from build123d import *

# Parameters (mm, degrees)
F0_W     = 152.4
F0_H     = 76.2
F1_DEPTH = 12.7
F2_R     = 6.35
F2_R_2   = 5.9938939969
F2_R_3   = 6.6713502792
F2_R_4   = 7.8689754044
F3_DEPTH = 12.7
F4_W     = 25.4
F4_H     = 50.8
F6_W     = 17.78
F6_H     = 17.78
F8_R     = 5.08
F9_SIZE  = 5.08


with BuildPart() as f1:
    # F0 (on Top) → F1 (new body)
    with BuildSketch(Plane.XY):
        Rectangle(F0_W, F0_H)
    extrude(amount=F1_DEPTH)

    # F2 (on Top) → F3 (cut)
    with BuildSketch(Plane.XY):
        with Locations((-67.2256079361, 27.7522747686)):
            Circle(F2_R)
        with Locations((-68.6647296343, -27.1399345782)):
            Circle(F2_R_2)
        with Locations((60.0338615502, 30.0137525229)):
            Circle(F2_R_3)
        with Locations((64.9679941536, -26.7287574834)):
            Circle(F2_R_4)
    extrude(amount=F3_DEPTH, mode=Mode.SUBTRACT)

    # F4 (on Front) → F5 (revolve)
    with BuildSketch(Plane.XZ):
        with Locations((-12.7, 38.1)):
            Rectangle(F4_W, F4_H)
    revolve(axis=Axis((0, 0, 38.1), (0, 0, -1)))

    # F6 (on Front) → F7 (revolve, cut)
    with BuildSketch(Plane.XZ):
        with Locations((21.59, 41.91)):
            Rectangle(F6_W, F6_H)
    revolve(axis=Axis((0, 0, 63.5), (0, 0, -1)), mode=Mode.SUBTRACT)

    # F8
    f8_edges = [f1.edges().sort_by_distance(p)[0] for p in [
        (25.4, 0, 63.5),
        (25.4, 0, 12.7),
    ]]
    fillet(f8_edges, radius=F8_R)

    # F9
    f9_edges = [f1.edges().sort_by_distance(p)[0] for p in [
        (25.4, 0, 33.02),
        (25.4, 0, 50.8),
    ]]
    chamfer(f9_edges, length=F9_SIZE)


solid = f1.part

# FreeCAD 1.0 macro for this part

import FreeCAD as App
import Part
import Sketcher
Q = App.Units.Quantity


def edges_at(feature, points):
    """Names of the edges that pass closest to the given points."""
    edges = feature.Shape.Edges
    near = lambda p: min(range(len(edges)), key=lambda i: edges[i].distToShape(Part.Vertex(*p))[0])
    return sorted({f"Edge{near(p) + 1}" for p in points})

doc = App.newDocument("Part")
body = doc.addObject("PartDesign::Body", "Body")

sketch1 = doc.addObject("Sketcher::SketchObject", "Sketch")
body.addObject(sketch1)
sketch1.AttachmentSupport = (doc.XY_Plane, [""])
sketch1.MapMode = "FlatFace"
sketch1.addGeometry([
    Part.LineSegment(App.Vector(-76.2, 38.1, 0), App.Vector(-76.2, -38.1, 0)),
    Part.LineSegment(App.Vector(-76.2, -38.1, 0), App.Vector(76.2, -38.1, 0)),
    Part.LineSegment(App.Vector(76.2, -38.1, 0), App.Vector(76.2, 38.1, 0)),
    Part.LineSegment(App.Vector(76.2, 38.1, 0), App.Vector(-76.2, 38.1, 0)),
], False)
sketch1.addConstraint([
    Sketcher.Constraint("Coincident", 0, 2, 1, 1),
    Sketcher.Constraint("Coincident", 1, 2, 2, 1),
    Sketcher.Constraint("Coincident", 2, 2, 3, 1),
    Sketcher.Constraint("Coincident", 3, 2, 0, 1),
    Sketcher.Constraint("Vertical", 0),
    Sketcher.Constraint("Horizontal", 1),
    Sketcher.Constraint("Vertical", 2),
    Sketcher.Constraint("Horizontal", 3),
    Sketcher.Constraint("Symmetric", 0, 2, 2, 2, -1, 1),
    Sketcher.Constraint("DistanceX", 1, 1, 1, 2, Q("6 in")),
    Sketcher.Constraint("DistanceY", 0, 2, 0, 1, Q("3 in")),
])
pad1 = doc.addObject("PartDesign::Pad", "Pad")
body.addObject(pad1)
pad1.Profile = sketch1
pad1.Length = Q("0.5 in")

sketch2 = doc.addObject("Sketcher::SketchObject", "Sketch001")
body.addObject(sketch2)
sketch2.AttachmentSupport = (doc.XY_Plane, [""])
sketch2.MapMode = "FlatFace"
sketch2.addGeometry([
    Part.Circle(App.Vector(-67.225608, 27.752275, 0), App.Vector(0, 0, 1), 6.35),
    Part.Circle(App.Vector(-68.66473, -27.139935, 0), App.Vector(0, 0, 1), 5.993894),
    Part.Circle(App.Vector(60.033862, 30.013753, 0), App.Vector(0, 0, 1), 6.67135),
    Part.Circle(App.Vector(64.967994, -26.728757, 0), App.Vector(0, 0, 1), 7.868975),
], False)
sketch2.addConstraint([
    Sketcher.Constraint("Diameter", 0, Q("0.5 in")),
    Sketcher.Constraint("Diameter", 2, 13.342701),
    Sketcher.Constraint("Diameter", 3, 15.737951),
    Sketcher.Constraint("Diameter", 1, 11.987788),
    Sketcher.Constraint("DistanceX", 1, 3, -1, 1, 68.66473),
    Sketcher.Constraint("DistanceX", -1, 1, 2, 3, 60.033862),
    Sketcher.Constraint("DistanceX", 1, 3, 0, 3, 1.439122),
    Sketcher.Constraint("DistanceY", 1, 3, 0, 3, 54.892209),
    Sketcher.Constraint("DistanceY", 3, 3, 2, 3, 56.74251),
    Sketcher.Constraint("DistanceY", -1, 1, 0, 3, 27.752275),
    Sketcher.Constraint("DistanceY", -1, 1, 2, 3, 30.013753),
    Sketcher.Constraint("DistanceX", -1, 1, 3, 3, 64.967994),
])
pocket1 = doc.addObject("PartDesign::Pocket", "Pocket")
body.addObject(pocket1)
pocket1.Profile = sketch2
pocket1.Length = Q("0.5 in")
pocket1.Reversed = True

sketch3 = doc.addObject("Sketcher::SketchObject", "Sketch002")
body.addObject(sketch3)
sketch3.AttachmentSupport = (doc.XZ_Plane, [""])
sketch3.MapMode = "FlatFace"
sketch3.addGeometry([
    Part.LineSegment(App.Vector(-25.4, 63.5, 0), App.Vector(-25.4, 12.7, 0)),
    Part.LineSegment(App.Vector(-25.4, 12.7, 0), App.Vector(0, 12.7, 0)),
    Part.LineSegment(App.Vector(0, 12.7, 0), App.Vector(0, 63.5, 0)),
    Part.LineSegment(App.Vector(0, 63.5, 0), App.Vector(-25.4, 63.5, 0)),
], False)
sketch3.addConstraint([
    Sketcher.Constraint("Coincident", 0, 2, 1, 1),
    Sketcher.Constraint("Coincident", 1, 2, 2, 1),
    Sketcher.Constraint("Coincident", 2, 2, 3, 1),
    Sketcher.Constraint("Coincident", 3, 2, 0, 1),
    Sketcher.Constraint("Vertical", 0),
    Sketcher.Constraint("Horizontal", 1),
    Sketcher.Constraint("Vertical", 2),
    Sketcher.Constraint("Horizontal", 3),
    Sketcher.Constraint("PointOnObject", 1, 2, -2),
    Sketcher.Constraint("DistanceX", 1, 1, 1, 2, Q("1 in")),
    Sketcher.Constraint("DistanceY", 0, 2, 0, 1, Q("2 in")),
    Sketcher.Constraint("DistanceY", -1, 1, 0, 2, Q("0.5 in")),
])
revolution = doc.addObject("PartDesign::Revolution", "Revolution")
body.addObject(revolution)
revolution.Profile = sketch3
revolution.ReferenceAxis = (sketch3, ["V_Axis"])
revolution.Angle = 360

sketch4 = doc.addObject("Sketcher::SketchObject", "Sketch003")
body.addObject(sketch4)
sketch4.AttachmentSupport = (doc.XZ_Plane, [""])
sketch4.MapMode = "FlatFace"
sketch4.addGeometry([
    Part.LineSegment(App.Vector(12.7, 50.8, 0), App.Vector(12.7, 33.02, 0)),
    Part.LineSegment(App.Vector(12.7, 33.02, 0), App.Vector(30.48, 33.02, 0)),
    Part.LineSegment(App.Vector(30.48, 33.02, 0), App.Vector(30.48, 50.8, 0)),
    Part.LineSegment(App.Vector(30.48, 50.8, 0), App.Vector(12.7, 50.8, 0)),
], False)
sketch4.addConstraint([
    Sketcher.Constraint("Coincident", 0, 2, 1, 1),
    Sketcher.Constraint("Coincident", 1, 2, 2, 1),
    Sketcher.Constraint("Coincident", 2, 2, 3, 1),
    Sketcher.Constraint("Coincident", 3, 2, 0, 1),
    Sketcher.Constraint("Vertical", 0),
    Sketcher.Constraint("Horizontal", 1),
    Sketcher.Constraint("Vertical", 2),
    Sketcher.Constraint("Horizontal", 3),
    Sketcher.Constraint("Equal", 3, 0),
    Sketcher.Constraint("DistanceX", 1, 1, 1, 2, Q("0.7 in")),
    Sketcher.Constraint("DistanceY", -1, 1, 2, 2, Q("2 in")),
    Sketcher.Constraint("DistanceX", -1, 1, 0, 2, Q("0.5 in")),
])
groove = doc.addObject("PartDesign::Groove", "Groove")
body.addObject(groove)
groove.Profile = sketch4
groove.ReferenceAxis = (sketch4, ["V_Axis"])
groove.Angle = 360
doc.recompute()

fillet = doc.addObject("PartDesign::Fillet", "Fillet")
body.addObject(fillet)
fillet.Base = (groove, edges_at(groove, [(25.4, 0, 63.5), (25.4, 0, 12.7)]))
fillet.Radius = Q("0.2 in")
doc.recompute()

chamfer = doc.addObject("PartDesign::Chamfer", "Chamfer")
body.addObject(chamfer)
chamfer.Base = (fillet, edges_at(fillet, [(25.4, 0, 33.02), (25.4, 0, 50.8)]))
chamfer.Size = Q("0.2 in")

doc.recompute()
